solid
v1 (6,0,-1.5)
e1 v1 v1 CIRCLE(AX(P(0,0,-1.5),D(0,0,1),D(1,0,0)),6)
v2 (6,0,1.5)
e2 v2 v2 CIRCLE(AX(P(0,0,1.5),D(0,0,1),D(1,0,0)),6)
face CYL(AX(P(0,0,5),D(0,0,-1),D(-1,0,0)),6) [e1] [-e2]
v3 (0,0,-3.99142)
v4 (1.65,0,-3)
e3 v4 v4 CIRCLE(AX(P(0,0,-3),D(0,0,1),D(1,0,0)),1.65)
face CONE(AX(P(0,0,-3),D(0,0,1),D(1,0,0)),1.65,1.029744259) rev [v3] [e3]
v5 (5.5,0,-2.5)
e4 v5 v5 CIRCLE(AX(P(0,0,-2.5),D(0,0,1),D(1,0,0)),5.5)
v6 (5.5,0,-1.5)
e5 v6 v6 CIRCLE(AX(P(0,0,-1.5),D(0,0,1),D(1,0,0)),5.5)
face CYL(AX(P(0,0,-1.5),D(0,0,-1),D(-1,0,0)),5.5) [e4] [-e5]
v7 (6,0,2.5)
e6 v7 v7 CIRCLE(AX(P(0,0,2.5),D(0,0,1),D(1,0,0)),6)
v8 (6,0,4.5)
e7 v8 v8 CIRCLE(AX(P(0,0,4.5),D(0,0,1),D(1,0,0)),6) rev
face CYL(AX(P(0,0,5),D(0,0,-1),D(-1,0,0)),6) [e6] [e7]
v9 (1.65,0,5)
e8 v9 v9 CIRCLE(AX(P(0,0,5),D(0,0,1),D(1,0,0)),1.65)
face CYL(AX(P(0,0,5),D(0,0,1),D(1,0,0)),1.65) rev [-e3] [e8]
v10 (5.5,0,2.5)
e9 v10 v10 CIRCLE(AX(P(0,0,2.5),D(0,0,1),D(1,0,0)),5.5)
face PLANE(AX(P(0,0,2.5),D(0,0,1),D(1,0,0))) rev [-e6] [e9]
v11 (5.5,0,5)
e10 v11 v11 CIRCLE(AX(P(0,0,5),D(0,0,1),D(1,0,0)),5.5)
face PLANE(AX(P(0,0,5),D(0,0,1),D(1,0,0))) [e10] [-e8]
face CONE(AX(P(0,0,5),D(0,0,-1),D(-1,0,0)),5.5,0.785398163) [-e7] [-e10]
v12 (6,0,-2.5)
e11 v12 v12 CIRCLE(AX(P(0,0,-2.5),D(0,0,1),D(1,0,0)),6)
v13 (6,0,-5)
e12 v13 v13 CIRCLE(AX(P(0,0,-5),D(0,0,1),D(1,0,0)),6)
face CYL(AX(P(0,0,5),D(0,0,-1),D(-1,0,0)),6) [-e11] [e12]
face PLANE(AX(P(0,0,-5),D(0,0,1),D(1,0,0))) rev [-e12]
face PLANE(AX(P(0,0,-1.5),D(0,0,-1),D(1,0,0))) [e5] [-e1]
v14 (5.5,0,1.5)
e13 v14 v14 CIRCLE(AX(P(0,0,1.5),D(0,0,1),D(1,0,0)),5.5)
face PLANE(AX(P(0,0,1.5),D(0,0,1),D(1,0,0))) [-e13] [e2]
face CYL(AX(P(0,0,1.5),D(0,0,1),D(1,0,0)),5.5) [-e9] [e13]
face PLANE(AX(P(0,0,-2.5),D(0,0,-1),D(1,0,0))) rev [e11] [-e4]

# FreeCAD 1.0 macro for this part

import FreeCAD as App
import Part
import Sketcher
from FreeCAD import Vector


def edges_at(feature, points):
    """Names of the edges that pass closest to the given points."""
    edges = feature.Shape.Edges
    near = lambda p: min(range(len(edges)), key=lambda i: edges[i].distToShape(Part.Vertex(*p))[0])
    return sorted({f"Edge{near(p) + 1}" for p in points})

doc = App.newDocument("Part")
params = doc.addObject("Spreadsheet::Sheet", "Params")
for row, (alias, value) in enumerate([
    ("sketch1_diameter", "12 mm"),
    ("pad1_length", "10 mm"),
    ("sketch2_diameter", "12 mm"),
    ("sketch2_diameter2", "11 mm"),
    ("pocket1_length", "1 mm"),
    ("chamfer_size", "0.5 mm"),
    ("sketch3_diameter", "3.3 mm"),
    ("hole_diameter", "3.3 mm"),
    ("hole_depth", "8 mm"),
], start=1):
    params.set(f"A{row}", alias)
    params.set(f"B{row}", "=" + value)
    params.setAlias(f"B{row}", alias)

body = doc.addObject("PartDesign::Body", "Body")

sketch1 = doc.addObject("Sketcher::SketchObject", "Sketch")
body.addObject(sketch1)
sketch1.AttachmentSupport = (doc.XY_Plane, [""])
sketch1.MapMode = "FlatFace"
sketch1.addGeometry(Part.Circle(Vector(0, 0, 0), Vector(0, 0, 1), 6), False)
sketch1.addConstraint([
    Sketcher.Constraint("Coincident", 0, 3, -1, 1),
    Sketcher.Constraint("Diameter", 0, 12.0),
])
sketch1.setExpression("Constraints[1]", "Params.sketch1_diameter")
pad1 = doc.addObject("PartDesign::Pad", "Pad")
body.addObject(pad1)
pad1.Profile = sketch1
pad1.setExpression("Length", "Params.pad1_length")
pad1.Midplane = True

sketch2 = doc.addObject("Sketcher::SketchObject", "Sketch001")
body.addObject(sketch2)
sketch2.AttachmentSupport = (doc.XY_Plane, [""])
sketch2.MapMode = "FlatFace"
sketch2.AttachmentOffset = App.Placement(Vector(0, 0, 2.5), App.Rotation())
sketch2.addGeometry([
    Part.Circle(Vector(0, 0, 0), Vector(0, 0, 1), 6),
    Part.Circle(Vector(0, 0, 0), Vector(0, 0, 1), 5.5),
], False)
sketch2.addConstraint([
    Sketcher.Constraint("Coincident", 0, 3, -1, 1),
    Sketcher.Constraint("Coincident", 1, 3, -1, 1),
    Sketcher.Constraint("Diameter", 0, 12.0),
    Sketcher.Constraint("Diameter", 1, 11.0),
])
sketch2.setExpression("Constraints[2]", "Params.sketch2_diameter")
sketch2.setExpression("Constraints[3]", "Params.sketch2_diameter2")
pocket1 = doc.addObject("PartDesign::Pocket", "Pocket")
body.addObject(pocket1)
pocket1.Profile = sketch2
pocket1.setExpression("Length", "Params.pocket1_length")
doc.recompute()

mirrored = doc.addObject("PartDesign::Mirrored", "Mirrored")
body.addObject(mirrored)
mirrored.Originals = [pocket1]
mirrored.MirrorPlane = (doc.XY_Plane, [""])
body.Tip = mirrored
doc.recompute()

chamfer = doc.addObject("PartDesign::Chamfer", "Chamfer")
body.addObject(chamfer)
chamfer.Base = (mirrored, edges_at(mirrored, [(-6, 0, 5)]))
chamfer.setExpression("Size", "Params.chamfer_size")

sketch3 = doc.addObject("Sketcher::SketchObject", "Sketch002")
body.addObject(sketch3)
sketch3.AttachmentSupport = (doc.XY_Plane, [""])
sketch3.MapMode = "FlatFace"
sketch3.AttachmentOffset = App.Placement(Vector(0, 0, 5), App.Rotation())
sketch3.addGeometry(Part.Circle(Vector(0, 0, 0), Vector(0, 0, 1), 1.65), False)
sketch3.addConstraint([
    Sketcher.Constraint("Coincident", 0, 3, -1, 1),
    Sketcher.Constraint("Diameter", 0, 3.3),
])
sketch3.setExpression("Constraints[1]", "Params.sketch3_diameter")
doc.recompute()
hole = doc.addObject("PartDesign::Hole", "Hole")
body.addObject(hole)
hole.Profile = sketch3
hole.ThreadType = "None"
hole.setExpression("Diameter", "Params.hole_diameter")
hole.DepthType = "Dimension"
hole.setExpression("Depth", "Params.hole_depth")
hole.DrillPoint = "Angled"
hole.DrillPointAngle = 118

doc.recompute()
